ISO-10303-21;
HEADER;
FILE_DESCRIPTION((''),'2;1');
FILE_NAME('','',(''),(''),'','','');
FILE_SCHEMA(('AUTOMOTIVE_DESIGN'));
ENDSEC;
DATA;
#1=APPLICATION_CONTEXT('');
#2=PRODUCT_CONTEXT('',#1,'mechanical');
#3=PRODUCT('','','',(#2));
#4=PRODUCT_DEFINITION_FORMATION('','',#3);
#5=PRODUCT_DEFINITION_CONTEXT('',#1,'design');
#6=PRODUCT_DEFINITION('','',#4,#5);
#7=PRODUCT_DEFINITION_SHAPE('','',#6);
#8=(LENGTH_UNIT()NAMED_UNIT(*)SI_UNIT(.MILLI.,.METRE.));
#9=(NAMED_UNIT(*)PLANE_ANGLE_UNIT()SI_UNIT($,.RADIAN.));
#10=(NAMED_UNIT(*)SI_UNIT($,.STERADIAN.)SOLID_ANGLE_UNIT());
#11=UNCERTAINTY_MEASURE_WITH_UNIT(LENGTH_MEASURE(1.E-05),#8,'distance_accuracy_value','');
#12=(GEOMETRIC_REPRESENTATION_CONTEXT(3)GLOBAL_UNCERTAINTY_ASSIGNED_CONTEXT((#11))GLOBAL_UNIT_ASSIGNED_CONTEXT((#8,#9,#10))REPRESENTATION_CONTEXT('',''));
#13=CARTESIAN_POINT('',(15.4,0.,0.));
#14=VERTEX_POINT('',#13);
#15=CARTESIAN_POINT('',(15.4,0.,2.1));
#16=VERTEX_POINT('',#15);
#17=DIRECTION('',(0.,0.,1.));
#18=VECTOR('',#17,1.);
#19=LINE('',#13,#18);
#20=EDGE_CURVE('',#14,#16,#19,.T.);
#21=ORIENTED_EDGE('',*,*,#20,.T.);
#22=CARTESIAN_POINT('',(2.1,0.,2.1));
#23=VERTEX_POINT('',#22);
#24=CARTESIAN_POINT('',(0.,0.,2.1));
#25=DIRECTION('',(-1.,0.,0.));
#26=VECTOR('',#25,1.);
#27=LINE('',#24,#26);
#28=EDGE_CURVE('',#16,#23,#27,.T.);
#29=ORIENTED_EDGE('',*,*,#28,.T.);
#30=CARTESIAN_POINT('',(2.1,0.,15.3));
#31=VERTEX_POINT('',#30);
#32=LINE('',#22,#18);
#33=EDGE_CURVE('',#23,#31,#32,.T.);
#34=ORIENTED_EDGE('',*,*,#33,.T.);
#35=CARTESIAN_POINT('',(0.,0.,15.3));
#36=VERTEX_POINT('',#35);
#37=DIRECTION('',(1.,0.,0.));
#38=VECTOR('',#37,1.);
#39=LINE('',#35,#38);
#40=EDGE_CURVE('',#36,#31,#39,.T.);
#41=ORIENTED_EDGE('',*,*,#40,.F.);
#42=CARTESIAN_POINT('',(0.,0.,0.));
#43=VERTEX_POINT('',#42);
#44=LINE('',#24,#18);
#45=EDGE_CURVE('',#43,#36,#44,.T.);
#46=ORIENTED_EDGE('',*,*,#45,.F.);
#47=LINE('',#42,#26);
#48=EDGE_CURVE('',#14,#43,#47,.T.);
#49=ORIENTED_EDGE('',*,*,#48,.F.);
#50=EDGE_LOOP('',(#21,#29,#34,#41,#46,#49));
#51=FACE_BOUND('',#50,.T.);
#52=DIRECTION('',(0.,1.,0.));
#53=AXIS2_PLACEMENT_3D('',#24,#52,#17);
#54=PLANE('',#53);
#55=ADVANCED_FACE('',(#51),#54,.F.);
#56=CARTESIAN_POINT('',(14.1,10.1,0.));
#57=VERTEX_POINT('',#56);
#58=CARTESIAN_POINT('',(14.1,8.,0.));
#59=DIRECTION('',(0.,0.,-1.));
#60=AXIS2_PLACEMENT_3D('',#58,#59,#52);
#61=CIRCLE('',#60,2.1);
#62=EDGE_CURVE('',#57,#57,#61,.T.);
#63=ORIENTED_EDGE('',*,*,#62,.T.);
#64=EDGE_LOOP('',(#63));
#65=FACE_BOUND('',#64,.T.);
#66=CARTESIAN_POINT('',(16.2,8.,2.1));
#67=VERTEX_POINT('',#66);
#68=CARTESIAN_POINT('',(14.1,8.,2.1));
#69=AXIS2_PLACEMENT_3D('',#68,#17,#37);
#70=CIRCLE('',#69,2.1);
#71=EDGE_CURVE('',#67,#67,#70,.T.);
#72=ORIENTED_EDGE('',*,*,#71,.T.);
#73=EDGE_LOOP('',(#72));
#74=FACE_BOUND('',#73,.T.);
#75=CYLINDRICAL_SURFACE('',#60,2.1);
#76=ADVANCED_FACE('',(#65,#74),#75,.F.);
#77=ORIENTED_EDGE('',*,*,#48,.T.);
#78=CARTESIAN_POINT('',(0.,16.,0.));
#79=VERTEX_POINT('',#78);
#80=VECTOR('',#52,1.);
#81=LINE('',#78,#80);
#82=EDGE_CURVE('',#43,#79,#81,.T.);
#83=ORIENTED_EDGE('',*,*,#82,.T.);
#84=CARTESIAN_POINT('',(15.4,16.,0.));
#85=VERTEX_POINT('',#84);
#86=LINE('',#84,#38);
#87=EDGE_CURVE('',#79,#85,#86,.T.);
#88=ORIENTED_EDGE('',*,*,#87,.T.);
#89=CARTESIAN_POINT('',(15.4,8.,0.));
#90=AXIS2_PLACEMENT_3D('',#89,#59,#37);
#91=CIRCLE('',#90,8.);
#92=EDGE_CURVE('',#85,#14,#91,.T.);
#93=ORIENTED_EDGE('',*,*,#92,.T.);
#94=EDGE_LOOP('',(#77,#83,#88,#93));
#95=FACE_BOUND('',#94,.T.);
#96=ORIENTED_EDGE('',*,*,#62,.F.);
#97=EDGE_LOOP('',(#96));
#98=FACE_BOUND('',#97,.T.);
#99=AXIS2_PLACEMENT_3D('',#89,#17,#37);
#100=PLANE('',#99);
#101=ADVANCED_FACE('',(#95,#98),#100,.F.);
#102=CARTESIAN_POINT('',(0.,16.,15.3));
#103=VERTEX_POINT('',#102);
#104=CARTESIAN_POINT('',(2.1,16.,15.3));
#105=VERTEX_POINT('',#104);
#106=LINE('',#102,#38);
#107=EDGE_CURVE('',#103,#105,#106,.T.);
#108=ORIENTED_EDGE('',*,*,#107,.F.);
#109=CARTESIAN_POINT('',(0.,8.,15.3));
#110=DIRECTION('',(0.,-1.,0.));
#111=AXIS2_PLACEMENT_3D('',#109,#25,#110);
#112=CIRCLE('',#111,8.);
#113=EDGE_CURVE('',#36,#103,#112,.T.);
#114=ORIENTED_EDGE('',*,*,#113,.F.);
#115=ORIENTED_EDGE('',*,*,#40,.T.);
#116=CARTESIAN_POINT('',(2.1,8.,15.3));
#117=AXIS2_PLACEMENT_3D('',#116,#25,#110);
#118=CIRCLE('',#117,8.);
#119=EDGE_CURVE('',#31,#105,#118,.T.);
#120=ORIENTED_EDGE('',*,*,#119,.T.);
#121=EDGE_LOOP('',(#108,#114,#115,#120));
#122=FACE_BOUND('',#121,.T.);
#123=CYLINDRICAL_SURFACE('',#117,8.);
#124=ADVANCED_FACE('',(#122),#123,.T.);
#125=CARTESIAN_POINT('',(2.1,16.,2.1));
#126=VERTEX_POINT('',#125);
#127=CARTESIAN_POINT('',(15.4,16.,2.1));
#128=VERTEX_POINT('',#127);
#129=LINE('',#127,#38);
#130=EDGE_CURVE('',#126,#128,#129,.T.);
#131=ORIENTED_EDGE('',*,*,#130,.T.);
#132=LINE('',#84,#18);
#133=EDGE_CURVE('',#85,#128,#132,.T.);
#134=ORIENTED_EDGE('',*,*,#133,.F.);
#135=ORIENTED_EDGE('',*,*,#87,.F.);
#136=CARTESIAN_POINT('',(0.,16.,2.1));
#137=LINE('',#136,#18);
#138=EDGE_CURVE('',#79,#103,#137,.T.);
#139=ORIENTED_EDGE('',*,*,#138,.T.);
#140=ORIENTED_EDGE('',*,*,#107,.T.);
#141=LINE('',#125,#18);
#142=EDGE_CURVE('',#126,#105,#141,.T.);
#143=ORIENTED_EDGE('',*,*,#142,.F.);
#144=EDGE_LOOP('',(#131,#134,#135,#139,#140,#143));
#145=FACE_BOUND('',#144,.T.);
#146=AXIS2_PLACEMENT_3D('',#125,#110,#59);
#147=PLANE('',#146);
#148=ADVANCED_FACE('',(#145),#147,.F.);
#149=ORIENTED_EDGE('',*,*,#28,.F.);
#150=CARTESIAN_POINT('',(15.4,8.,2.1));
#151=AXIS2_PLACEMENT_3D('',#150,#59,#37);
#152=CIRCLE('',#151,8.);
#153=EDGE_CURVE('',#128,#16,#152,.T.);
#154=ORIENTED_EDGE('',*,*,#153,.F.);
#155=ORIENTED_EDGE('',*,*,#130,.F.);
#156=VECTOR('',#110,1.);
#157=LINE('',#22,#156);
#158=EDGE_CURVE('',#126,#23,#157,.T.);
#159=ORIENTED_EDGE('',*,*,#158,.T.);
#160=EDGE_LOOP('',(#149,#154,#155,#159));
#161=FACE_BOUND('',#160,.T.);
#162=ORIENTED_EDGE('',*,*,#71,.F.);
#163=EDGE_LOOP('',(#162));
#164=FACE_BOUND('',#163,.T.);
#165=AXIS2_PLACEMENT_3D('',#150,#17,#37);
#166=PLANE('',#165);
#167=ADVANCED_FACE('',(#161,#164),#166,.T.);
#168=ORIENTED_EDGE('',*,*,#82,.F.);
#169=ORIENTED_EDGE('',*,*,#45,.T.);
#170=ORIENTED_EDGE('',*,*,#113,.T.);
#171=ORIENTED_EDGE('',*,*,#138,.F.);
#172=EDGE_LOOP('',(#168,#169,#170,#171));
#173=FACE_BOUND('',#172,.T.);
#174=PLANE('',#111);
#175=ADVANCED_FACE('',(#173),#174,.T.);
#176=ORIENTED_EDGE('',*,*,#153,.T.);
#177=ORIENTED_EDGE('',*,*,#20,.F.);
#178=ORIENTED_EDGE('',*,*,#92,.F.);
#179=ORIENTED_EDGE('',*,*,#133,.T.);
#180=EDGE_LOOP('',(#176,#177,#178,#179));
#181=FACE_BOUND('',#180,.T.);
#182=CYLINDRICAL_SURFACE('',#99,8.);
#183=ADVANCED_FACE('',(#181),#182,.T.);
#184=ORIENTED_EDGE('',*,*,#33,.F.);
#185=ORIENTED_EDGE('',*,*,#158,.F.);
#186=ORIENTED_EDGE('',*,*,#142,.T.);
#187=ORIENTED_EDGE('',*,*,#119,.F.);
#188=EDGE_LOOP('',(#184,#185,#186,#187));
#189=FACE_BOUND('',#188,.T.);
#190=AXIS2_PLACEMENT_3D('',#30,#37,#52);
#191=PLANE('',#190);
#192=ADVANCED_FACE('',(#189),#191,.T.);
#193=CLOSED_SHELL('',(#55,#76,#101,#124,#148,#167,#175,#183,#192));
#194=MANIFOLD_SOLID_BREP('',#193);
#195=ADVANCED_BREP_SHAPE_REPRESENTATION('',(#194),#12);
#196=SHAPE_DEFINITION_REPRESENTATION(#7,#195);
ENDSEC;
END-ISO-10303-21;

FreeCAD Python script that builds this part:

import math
import FreeCAD as App
import Part
import Sketcher

V = App.Vector


def add_polygon(sketch, points):
    """Adds a closed chain of lines whose ends are joined by coincident constraints."""
    first, n = sketch.GeometryCount, len(points)
    for a, b in zip(points, points[1:] + points[:1]):
        sketch.addGeometry(Part.LineSegment(App.Vector(*a, 0), App.Vector(*b, 0)), False)
    for i in range(n):
        sketch.addConstraint(Sketcher.Constraint("Coincident", first + i, 2, first + (i + 1) % n, 1))

doc = App.newDocument("Part")
body = doc.addObject("PartDesign::Body", "Body")

sketch1 = body.newObject("Sketcher::SketchObject", "Sketch")
sketch1.AttachmentSupport = (doc.getObject("XY_Plane"), [""])
sketch1.MapMode = "FlatFace"
sketch1.AttachmentOffset = App.Placement(V(0, 0, 15.3), App.Rotation())
add_polygon(sketch1, [(2.1, 16), (2.1, 8), (0, 8), (0, 16)])
sketch1.addGeometry(Part.LineSegment(V(0, 8, 0), V(2.1, 8, 0)), True)
sketch1.addConstraint(Sketcher.Constraint("Vertical", 0))
sketch1.addConstraint(Sketcher.Constraint("Horizontal", 1))
sketch1.addConstraint(Sketcher.Constraint("Vertical", 2))
sketch1.addConstraint(Sketcher.Constraint("Horizontal", 3))
sketch1.addConstraint(Sketcher.Constraint("Horizontal", 4))
sketch1.addConstraint(Sketcher.Constraint("Coincident", 4, 1, 1, 2))
sketch1.addConstraint(Sketcher.Constraint("PointOnObject", 1, 2, -2))
sketch1.addConstraint(Sketcher.Constraint("Vertical", 3, 2, 4, 2))
sketch1.addConstraint(Sketcher.Constraint("DistanceY", 0, 2, 0, 1, 8.0))
sketch1.addConstraint(Sketcher.Constraint("DistanceX", 1, 2, 1, 1, 2.1))
sketch1.addConstraint(Sketcher.Constraint("DistanceY", -1, 1, 0, 2, 8.0))
revolution = body.newObject("PartDesign::Revolution", "Revolution")
revolution.Profile = sketch1
revolution.ReferenceAxis = (sketch1, ["Axis0"])
revolution.Angle = 180

sketch2 = body.newObject("Sketcher::SketchObject", "Sketch001")
sketch2.AttachmentSupport = (doc.getObject("XY_Plane"), [""])
sketch2.MapMode = "FlatFace"
sketch2.AttachmentOffset = App.Placement(V(0, 0, 15.3), App.Rotation())
add_polygon(sketch2, [(2.1, 16), (2.1, 0), (0, 0), (0, 16)])
sketch2.addConstraint(Sketcher.Constraint("Vertical", 0))
sketch2.addConstraint(Sketcher.Constraint("Horizontal", 1))
sketch2.addConstraint(Sketcher.Constraint("Vertical", 2))
sketch2.addConstraint(Sketcher.Constraint("Horizontal", 3))
sketch2.addConstraint(Sketcher.Constraint("Coincident", 1, 2, -1, 1))
sketch2.addConstraint(Sketcher.Constraint("DistanceY", 0, 2, 0, 1, 16.0))
sketch2.addConstraint(Sketcher.Constraint("DistanceX", 1, 2, 1, 1, 2.1))
pad1 = body.newObject("PartDesign::Pad", "Pad")
pad1.Profile = sketch2
pad1.Length = 13.2
pad1.Reversed = True

sketch3 = body.newObject("Sketcher::SketchObject", "Sketch002")
sketch3.AttachmentSupport = (doc.getObject("XY_Plane"), [""])
sketch3.MapMode = "FlatFace"
sketch3.AttachmentOffset = App.Placement(V(0, 0, 2.1), App.Rotation())
sketch3.addGeometry(Part.LineSegment(V(0, 16, 0), V(15, 16, 0)), False)
sketch3.addGeometry(Part.ArcOfCircle(Part.Circle(V(15, 8, 0), V(0, 0, 1), 8), math.radians(-90), math.radians(90)), False)
sketch3.addGeometry(Part.LineSegment(V(15, 0, 0), V(0, 0, 0)), False)
sketch3.addGeometry(Part.LineSegment(V(0, 0, 0), V(0, 16, 0)), False)
sketch3.addConstraint(Sketcher.Constraint("Tangent", 0, 2, 1, 2))
sketch3.addConstraint(Sketcher.Constraint("Tangent", 1, 1, 2, 1))
sketch3.addConstraint(Sketcher.Constraint("Coincident", 2, 2, 3, 1))
sketch3.addConstraint(Sketcher.Constraint("Coincident", 3, 2, 0, 1))
sketch3.addConstraint(Sketcher.Constraint("Horizontal", 0))
sketch3.addConstraint(Sketcher.Constraint("Horizontal", 2))
sketch3.addConstraint(Sketcher.Constraint("Vertical", 3))
sketch3.addConstraint(Sketcher.Constraint("Coincident", 2, 2, -1, 1))
sketch3.addConstraint(Sketcher.Constraint("Radius", 1, 8.0))
sketch3.addConstraint(Sketcher.Constraint("DistanceX", 0, 1, 0, 2, 15.4))
pad2 = body.newObject("PartDesign::Pad", "Pad001")
pad2.Profile = sketch3
pad2.Length = 2.1
pad2.Reversed = True

sketch4 = body.newObject("Sketcher::SketchObject", "Sketch003")
sketch4.AttachmentSupport = (doc.getObject("XY_Plane"), [""])
sketch4.MapMode = "FlatFace"
sketch4.addGeometry(Part.Circle(V(14.1, 8, 0), V(0, 0, 1), 2.1), False)
sketch4.addConstraint(Sketcher.Constraint("Diameter", 0, 4.2))
sketch4.addConstraint(Sketcher.Constraint("DistanceY", -1, 1, 0, 3, 8.0))
sketch4.addConstraint(Sketcher.Constraint("DistanceX", -1, 1, 0, 3, 14.1))
doc.recompute()
hole = body.newObject("PartDesign::Hole", "Hole")
hole.Profile = sketch4
hole.ThreadType = "None"
hole.Diameter = 4.2
hole.DepthType = "Dimension"
hole.Depth = 23.3
hole.DrillPoint = "Flat"
hole.Reversed = True

doc.recompute()
